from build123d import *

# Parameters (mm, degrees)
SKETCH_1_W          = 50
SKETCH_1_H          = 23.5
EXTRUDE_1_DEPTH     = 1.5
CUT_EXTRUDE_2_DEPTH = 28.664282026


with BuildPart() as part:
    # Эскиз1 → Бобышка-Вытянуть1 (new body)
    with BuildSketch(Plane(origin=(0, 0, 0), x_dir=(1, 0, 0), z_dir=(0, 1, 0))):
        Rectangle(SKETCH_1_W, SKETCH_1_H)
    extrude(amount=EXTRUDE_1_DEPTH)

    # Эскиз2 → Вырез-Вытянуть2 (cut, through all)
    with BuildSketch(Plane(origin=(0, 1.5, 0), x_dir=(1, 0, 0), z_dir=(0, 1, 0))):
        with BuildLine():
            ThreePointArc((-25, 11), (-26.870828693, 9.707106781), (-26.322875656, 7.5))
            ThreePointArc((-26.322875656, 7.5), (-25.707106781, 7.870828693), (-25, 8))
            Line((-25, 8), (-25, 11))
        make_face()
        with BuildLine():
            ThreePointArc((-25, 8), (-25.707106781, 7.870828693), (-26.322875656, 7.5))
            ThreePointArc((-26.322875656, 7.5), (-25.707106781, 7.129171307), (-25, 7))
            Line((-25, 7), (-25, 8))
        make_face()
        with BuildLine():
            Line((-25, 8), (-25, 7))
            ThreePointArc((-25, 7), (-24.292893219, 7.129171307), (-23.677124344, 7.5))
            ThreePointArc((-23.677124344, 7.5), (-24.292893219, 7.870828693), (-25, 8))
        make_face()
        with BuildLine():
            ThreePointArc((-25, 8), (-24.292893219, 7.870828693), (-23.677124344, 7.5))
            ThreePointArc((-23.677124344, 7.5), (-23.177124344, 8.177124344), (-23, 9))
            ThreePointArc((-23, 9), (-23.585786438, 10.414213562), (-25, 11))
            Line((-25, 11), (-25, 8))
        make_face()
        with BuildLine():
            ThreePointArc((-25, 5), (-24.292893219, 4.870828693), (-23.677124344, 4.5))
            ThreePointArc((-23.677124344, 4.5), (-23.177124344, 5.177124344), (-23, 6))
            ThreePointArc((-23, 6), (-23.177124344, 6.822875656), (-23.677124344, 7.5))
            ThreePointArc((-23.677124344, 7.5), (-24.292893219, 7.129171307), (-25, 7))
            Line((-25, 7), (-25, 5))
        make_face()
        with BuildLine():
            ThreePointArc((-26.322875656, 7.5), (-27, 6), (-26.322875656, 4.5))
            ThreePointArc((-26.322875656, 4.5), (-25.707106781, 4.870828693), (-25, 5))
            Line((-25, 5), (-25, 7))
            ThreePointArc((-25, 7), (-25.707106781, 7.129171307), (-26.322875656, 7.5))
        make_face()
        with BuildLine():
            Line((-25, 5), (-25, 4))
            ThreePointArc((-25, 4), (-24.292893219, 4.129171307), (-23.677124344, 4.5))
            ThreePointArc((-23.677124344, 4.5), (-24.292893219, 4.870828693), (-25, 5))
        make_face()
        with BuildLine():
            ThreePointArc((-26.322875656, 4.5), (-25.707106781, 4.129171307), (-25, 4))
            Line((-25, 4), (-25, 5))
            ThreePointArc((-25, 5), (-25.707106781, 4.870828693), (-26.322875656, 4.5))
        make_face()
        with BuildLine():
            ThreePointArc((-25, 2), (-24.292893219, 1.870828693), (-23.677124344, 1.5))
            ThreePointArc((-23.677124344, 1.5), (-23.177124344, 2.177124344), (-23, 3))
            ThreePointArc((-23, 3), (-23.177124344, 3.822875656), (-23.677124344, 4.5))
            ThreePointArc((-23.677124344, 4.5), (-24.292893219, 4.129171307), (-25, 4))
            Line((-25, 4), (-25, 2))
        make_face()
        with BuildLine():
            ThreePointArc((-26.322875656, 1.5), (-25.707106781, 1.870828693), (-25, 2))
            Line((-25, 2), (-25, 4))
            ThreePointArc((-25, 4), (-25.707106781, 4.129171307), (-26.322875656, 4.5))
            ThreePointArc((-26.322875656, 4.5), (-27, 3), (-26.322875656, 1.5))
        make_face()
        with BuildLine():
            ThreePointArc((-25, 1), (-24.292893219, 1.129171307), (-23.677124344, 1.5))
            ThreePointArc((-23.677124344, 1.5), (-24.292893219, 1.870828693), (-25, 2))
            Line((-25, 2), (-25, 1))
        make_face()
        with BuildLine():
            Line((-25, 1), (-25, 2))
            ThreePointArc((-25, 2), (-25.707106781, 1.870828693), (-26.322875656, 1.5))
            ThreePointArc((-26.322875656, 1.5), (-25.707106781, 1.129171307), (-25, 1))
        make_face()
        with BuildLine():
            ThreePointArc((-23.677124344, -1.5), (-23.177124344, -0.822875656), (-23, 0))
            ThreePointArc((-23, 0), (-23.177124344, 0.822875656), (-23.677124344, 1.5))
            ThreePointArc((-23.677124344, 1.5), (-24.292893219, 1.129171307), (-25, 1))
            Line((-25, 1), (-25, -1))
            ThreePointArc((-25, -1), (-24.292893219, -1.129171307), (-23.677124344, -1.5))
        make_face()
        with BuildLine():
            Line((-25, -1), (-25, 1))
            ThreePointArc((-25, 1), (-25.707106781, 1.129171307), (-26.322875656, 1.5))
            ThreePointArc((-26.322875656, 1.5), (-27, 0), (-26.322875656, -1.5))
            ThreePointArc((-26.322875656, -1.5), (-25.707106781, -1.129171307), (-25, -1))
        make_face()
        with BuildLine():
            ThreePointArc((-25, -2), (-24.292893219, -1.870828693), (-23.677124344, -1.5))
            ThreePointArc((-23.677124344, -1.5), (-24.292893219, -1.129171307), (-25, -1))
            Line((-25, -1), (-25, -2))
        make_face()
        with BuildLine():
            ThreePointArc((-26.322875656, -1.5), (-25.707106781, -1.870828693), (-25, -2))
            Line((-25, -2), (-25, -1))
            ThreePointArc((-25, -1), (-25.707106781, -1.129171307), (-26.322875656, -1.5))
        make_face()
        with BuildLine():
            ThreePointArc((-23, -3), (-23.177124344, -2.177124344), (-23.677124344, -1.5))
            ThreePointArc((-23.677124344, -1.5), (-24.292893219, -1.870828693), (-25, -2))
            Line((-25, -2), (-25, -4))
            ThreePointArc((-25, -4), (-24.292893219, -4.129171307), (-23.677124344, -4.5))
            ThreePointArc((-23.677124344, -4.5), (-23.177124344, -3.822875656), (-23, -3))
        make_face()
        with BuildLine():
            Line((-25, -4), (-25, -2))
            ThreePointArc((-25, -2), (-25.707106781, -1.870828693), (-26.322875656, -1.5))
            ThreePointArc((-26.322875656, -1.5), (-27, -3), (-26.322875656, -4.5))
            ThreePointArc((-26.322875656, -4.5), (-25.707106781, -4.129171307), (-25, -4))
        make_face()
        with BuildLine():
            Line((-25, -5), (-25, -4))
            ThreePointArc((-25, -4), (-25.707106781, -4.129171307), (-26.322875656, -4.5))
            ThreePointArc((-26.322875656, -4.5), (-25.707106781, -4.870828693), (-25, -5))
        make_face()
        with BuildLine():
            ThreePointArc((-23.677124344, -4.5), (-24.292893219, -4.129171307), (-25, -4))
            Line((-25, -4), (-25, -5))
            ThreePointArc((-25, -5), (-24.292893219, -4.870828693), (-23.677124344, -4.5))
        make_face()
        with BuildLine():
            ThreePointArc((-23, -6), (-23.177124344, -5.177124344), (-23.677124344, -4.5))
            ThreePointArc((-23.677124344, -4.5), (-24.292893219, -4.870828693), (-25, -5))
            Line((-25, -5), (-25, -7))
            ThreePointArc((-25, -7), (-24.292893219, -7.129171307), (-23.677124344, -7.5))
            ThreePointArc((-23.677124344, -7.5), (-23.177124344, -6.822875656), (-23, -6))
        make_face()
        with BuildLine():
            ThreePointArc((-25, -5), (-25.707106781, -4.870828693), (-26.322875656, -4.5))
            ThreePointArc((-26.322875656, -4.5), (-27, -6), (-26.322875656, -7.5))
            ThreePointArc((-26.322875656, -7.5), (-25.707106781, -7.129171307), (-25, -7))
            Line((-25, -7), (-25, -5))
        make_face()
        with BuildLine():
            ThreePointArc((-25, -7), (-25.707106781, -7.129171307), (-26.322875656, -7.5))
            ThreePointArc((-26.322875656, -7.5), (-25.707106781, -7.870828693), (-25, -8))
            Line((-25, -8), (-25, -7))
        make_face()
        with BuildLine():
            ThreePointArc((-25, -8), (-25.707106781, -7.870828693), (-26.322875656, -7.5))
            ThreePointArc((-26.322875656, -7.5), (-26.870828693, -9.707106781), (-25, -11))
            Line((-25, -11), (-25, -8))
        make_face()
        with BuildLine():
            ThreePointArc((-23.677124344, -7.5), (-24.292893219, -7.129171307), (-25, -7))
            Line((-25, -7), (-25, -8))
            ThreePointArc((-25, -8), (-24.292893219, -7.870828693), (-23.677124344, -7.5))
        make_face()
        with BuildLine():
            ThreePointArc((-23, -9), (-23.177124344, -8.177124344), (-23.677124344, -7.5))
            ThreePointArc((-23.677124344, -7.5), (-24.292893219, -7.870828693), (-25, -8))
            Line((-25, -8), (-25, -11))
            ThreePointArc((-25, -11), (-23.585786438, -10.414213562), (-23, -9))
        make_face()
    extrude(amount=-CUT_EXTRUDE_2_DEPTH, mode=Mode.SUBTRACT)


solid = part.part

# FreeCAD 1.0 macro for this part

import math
import FreeCAD as App
import Part
import Sketcher
Q = App.Units.Quantity


def add_polygon(sketch, points):
    """Adds a closed chain of lines whose ends are joined by coincident constraints."""
    first, n = sketch.GeometryCount, len(points)
    for a, b in zip(points, points[1:] + points[:1]):
        sketch.addGeometry(Part.LineSegment(App.Vector(*a, 0), App.Vector(*b, 0)), False)
    for i in range(n):
        sketch.addConstraint(Sketcher.Constraint("Coincident", first + i, 2, first + (i + 1) % n, 1))

doc = App.newDocument("Part")
body = doc.addObject("PartDesign::Body", "Body")

# Sketch on XZ plane
sketch1 = body.newObject("Sketcher::SketchObject", "Sketch")
sketch1.AttachmentSupport = (doc.getObject("XZ_Plane"), [""])
sketch1.MapMode = "FlatFace"
add_polygon(sketch1, [(-25, -12), (-25, 12), (25, 12), (25, -12)])  # lines 0-3
sketch1.addConstraint(Sketcher.Constraint("Vertical", 0))
sketch1.addConstraint(Sketcher.Constraint("Horizontal", 1))
sketch1.addConstraint(Sketcher.Constraint("Vertical", 2))
sketch1.addConstraint(Sketcher.Constraint("Horizontal", 3))
sketch1.addConstraint(Sketcher.Constraint("Symmetric", 0, 2, 2, 2, -1, 1))
sketch1.addConstraint(Sketcher.Constraint("DistanceX", 1, 1, 1, 2, Q("50 mm")))
sketch1.addConstraint(Sketcher.Constraint("DistanceY", 0, 1, 0, 2, Q("23.5 mm")))
pad1 = body.newObject("PartDesign::Pad", "Pad")
pad1.Profile = sketch1
pad1.Length = 1.5
pad1.Reversed = True

# Sketch on XZ plane
sketch2 = body.newObject("Sketcher::SketchObject", "Sketch001")
sketch2.AttachmentSupport = (doc.getObject("XZ_Plane"), [""])
sketch2.MapMode = "FlatFace"
sketch2.AttachmentOffset = App.Placement(App.Vector(0, 0, -1.5), App.Rotation())
sketch2.addGeometry(Part.ArcOfCircle(Part.Circle(App.Vector(-25, -3, 0), App.Vector(0, 0, 1), 2), math.radians(-49), math.radians(0)), False)
sketch2.addGeometry(Part.ArcOfCircle(Part.Circle(App.Vector(-25, -6, 0), App.Vector(0, 0, 1), 2), math.radians(0), math.radians(49)), False)
sketch2.addGeometry(Part.ArcOfCircle(Part.Circle(App.Vector(-25, -6, 0), App.Vector(0, 0, 1), 2), math.radians(-49), math.radians(0)), False)
sketch2.addGeometry(Part.ArcOfCircle(Part.Circle(App.Vector(-25, -9, 0), App.Vector(0, 0, 1), 2), math.radians(0), math.radians(49)), False)
sketch2.addGeometry(Part.ArcOfCircle(Part.Circle(App.Vector(-25, -9, 0), App.Vector(0, 0, 1), 2), math.radians(-90), math.radians(0)), False)
sketch2.addGeometry(Part.ArcOfCircle(Part.Circle(App.Vector(-25, -9, 0), App.Vector(0, 0, 1), 2), math.radians(131), math.radians(270)), False)
sketch2.addGeometry(Part.ArcOfCircle(Part.Circle(App.Vector(-25, -6, 0), App.Vector(0, 0, 1), 2), math.radians(131), math.radians(229)), False)
sketch2.addGeometry(Part.ArcOfCircle(Part.Circle(App.Vector(-25, -3, 0), App.Vector(0, 0, 1), 2), math.radians(131), math.radians(229)), False)
sketch2.addGeometry(Part.ArcOfCircle(Part.Circle(App.Vector(-25, 0, 0), App.Vector(0, 0, 1), 2), math.radians(131), math.radians(229)), False)
sketch2.addGeometry(Part.ArcOfCircle(Part.Circle(App.Vector(-25, 3, 0), App.Vector(0, 0, 1), 2), math.radians(131), math.radians(229)), False)
sketch2.addGeometry(Part.ArcOfCircle(Part.Circle(App.Vector(-25, 6, 0), App.Vector(0, 0, 1), 2), math.radians(131), math.radians(229)), False)
sketch2.addGeometry(Part.ArcOfCircle(Part.Circle(App.Vector(-25, 9, 0), App.Vector(0, 0, 1), 2), math.radians(90), math.radians(229)), False)
sketch2.addGeometry(Part.ArcOfCircle(Part.Circle(App.Vector(-25, 9, 0), App.Vector(0, 0, 1), 2), math.radians(0), math.radians(90)), False)
sketch2.addGeometry(Part.ArcOfCircle(Part.Circle(App.Vector(-25, 9, 0), App.Vector(0, 0, 1), 2), math.radians(-49), math.radians(0)), False)
sketch2.addGeometry(Part.ArcOfCircle(Part.Circle(App.Vector(-25, 6, 0), App.Vector(0, 0, 1), 2), math.radians(0), math.radians(49)), False)
sketch2.addGeometry(Part.ArcOfCircle(Part.Circle(App.Vector(-25, 6, 0), App.Vector(0, 0, 1), 2), math.radians(-49), math.radians(0)), False)
sketch2.addGeometry(Part.ArcOfCircle(Part.Circle(App.Vector(-25, 3, 0), App.Vector(0, 0, 1), 2), math.radians(0), math.radians(49)), False)
sketch2.addGeometry(Part.ArcOfCircle(Part.Circle(App.Vector(-25, 3, 0), App.Vector(0, 0, 1), 2), math.radians(-49), math.radians(0)), False)
sketch2.addGeometry(Part.ArcOfCircle(Part.Circle(App.Vector(-25, 0, 0), App.Vector(0, 0, 1), 2), math.radians(0), math.radians(49)), False)
sketch2.addGeometry(Part.ArcOfCircle(Part.Circle(App.Vector(-25, 0, 0), App.Vector(0, 0, 1), 2), math.radians(-49), math.radians(0)), False)
sketch2.addGeometry(Part.ArcOfCircle(Part.Circle(App.Vector(-25, -3, 0), App.Vector(0, 0, 1), 2), math.radians(0), math.radians(49)), False)
sketch2.addConstraint(Sketcher.Constraint("Coincident", 0, 1, 1, 2))
sketch2.addConstraint(Sketcher.Constraint("Tangent", 1, 1, 2, 2))
sketch2.addConstraint(Sketcher.Constraint("Coincident", 2, 1, 3, 2))
sketch2.addConstraint(Sketcher.Constraint("Tangent", 3, 1, 4, 2))
sketch2.addConstraint(Sketcher.Constraint("Tangent", 4, 1, 5, 2))
sketch2.addConstraint(Sketcher.Constraint("Coincident", 5, 1, 6, 2))
sketch2.addConstraint(Sketcher.Constraint("Coincident", 6, 1, 7, 2))
sketch2.addConstraint(Sketcher.Constraint("Coincident", 7, 1, 8, 2))
sketch2.addConstraint(Sketcher.Constraint("Coincident", 8, 1, 9, 2))
sketch2.addConstraint(Sketcher.Constraint("Coincident", 9, 1, 10, 2))
sketch2.addConstraint(Sketcher.Constraint("Coincident", 10, 1, 11, 2))
sketch2.addConstraint(Sketcher.Constraint("Tangent", 11, 1, 12, 2))
sketch2.addConstraint(Sketcher.Constraint("Tangent", 12, 1, 13, 2))
sketch2.addConstraint(Sketcher.Constraint("Coincident", 13, 1, 14, 2))
sketch2.addConstraint(Sketcher.Constraint("Tangent", 14, 1, 15, 2))
sketch2.addConstraint(Sketcher.Constraint("Coincident", 15, 1, 16, 2))
sketch2.addConstraint(Sketcher.Constraint("Tangent", 16, 1, 17, 2))
sketch2.addConstraint(Sketcher.Constraint("Coincident", 17, 1, 18, 2))
sketch2.addConstraint(Sketcher.Constraint("Tangent", 18, 1, 19, 2))
sketch2.addConstraint(Sketcher.Constraint("Coincident", 19, 1, 20, 2))
sketch2.addConstraint(Sketcher.Constraint("Tangent", 20, 1, 0, 2))
sketch2.addConstraint(Sketcher.Constraint("Coincident", 5, 3, 3, 3))
sketch2.addConstraint(Sketcher.Constraint("Coincident", 6, 3, 1, 3))
sketch2.addConstraint(Sketcher.Constraint("Coincident", 7, 3, 0, 3))
sketch2.addConstraint(Sketcher.Constraint("Coincident", 13, 3, 11, 3))
sketch2.addConstraint(Sketcher.Constraint("Coincident", 14, 3, 10, 3))
sketch2.addConstraint(Sketcher.Constraint("Coincident", 16, 3, 9, 3))
sketch2.addConstraint(Sketcher.Constraint("Coincident", 18, 3, 8, 3))
sketch2.addConstraint(Sketcher.Constraint("Equal", 0, 1))
sketch2.addConstraint(Sketcher.Constraint("Equal", 1, 2))
sketch2.addConstraint(Sketcher.Constraint("Equal", 2, 3))
sketch2.addConstraint(Sketcher.Constraint("Equal", 5, 6))
sketch2.addConstraint(Sketcher.Constraint("Equal", 6, 7))
sketch2.addConstraint(Sketcher.Constraint("Equal", 7, 8))
sketch2.addConstraint(Sketcher.Constraint("Equal", 8, 9))
sketch2.addConstraint(Sketcher.Constraint("Equal", 9, 10))
sketch2.addConstraint(Sketcher.Constraint("Equal", 10, 11))
sketch2.addConstraint(Sketcher.Constraint("Equal", 13, 14))
sketch2.addConstraint(Sketcher.Constraint("Equal", 14, 15))
sketch2.addConstraint(Sketcher.Constraint("Equal", 15, 16))
sketch2.addConstraint(Sketcher.Constraint("Equal", 16, 17))
sketch2.addConstraint(Sketcher.Constraint("Equal", 17, 18))
sketch2.addConstraint(Sketcher.Constraint("Equal", 18, 19))
sketch2.addConstraint(Sketcher.Constraint("Equal", 19, 20))
sketch2.addConstraint(Sketcher.Constraint("Symmetric", 0, 3, 9, 3, -1))
sketch2.addConstraint(Sketcher.Constraint("Symmetric", 1, 3, 10, 3, -1))
sketch2.addConstraint(Sketcher.Constraint("Symmetric", 3, 3, 11, 3, -1))
sketch2.addConstraint(Sketcher.Constraint("PointOnObject", 8, 3, -1))
sketch2.addConstraint(Sketcher.Constraint("PointOnObject", 18, 1, -1))
sketch2.addConstraint(Sketcher.Constraint("Horizontal", 6, 3, 1, 1))
sketch2.addConstraint(Sketcher.Constraint("Horizontal", 5, 3, 3, 1))
sketch2.addConstraint(Sketcher.Constraint("Horizontal", 2, 1, 5, 1))
sketch2.addConstraint(Sketcher.Constraint("Horizontal", 0, 1, 6, 1))
sketch2.addConstraint(Sketcher.Constraint("Horizontal", 13, 3, 12, 1))
sketch2.addConstraint(Sketcher.Constraint("Horizontal", 15, 3, 14, 1))
sketch2.addConstraint(Sketcher.Constraint("Horizontal", 17, 3, 16, 1))
sketch2.addConstraint(Sketcher.Constraint("Horizontal", 8, 1, 17, 1))
sketch2.addConstraint(Sketcher.Constraint("Horizontal", 7, 3, 20, 1))
sketch2.addConstraint(Sketcher.Constraint("Vertical", 0, 1, 2, 1))
sketch2.addConstraint(Sketcher.Constraint("Vertical", 20, 3, 4, 1))
sketch2.addConstraint(Sketcher.Constraint("Vertical", 6, 1, 7, 1))
sketch2.addConstraint(Sketcher.Constraint("Vertical", 4, 1, 11, 1))
sketch2.addConstraint(Sketcher.Constraint("Radius", 0, Q("2 mm")))
sketch2.addConstraint(Sketcher.Constraint("DistanceX", 0, 3, -1, 1, Q("25 mm")))
sketch2.addConstraint(Sketcher.Constraint("DistanceY", 0, 3, -1, 1, Q("3 mm")))
pocket1 = body.newObject("PartDesign::Pocket", "Pocket")
pocket1.Profile = sketch2
pocket1.Type = "ThroughAll"
pocket1.Reversed = True

doc.recompute()
